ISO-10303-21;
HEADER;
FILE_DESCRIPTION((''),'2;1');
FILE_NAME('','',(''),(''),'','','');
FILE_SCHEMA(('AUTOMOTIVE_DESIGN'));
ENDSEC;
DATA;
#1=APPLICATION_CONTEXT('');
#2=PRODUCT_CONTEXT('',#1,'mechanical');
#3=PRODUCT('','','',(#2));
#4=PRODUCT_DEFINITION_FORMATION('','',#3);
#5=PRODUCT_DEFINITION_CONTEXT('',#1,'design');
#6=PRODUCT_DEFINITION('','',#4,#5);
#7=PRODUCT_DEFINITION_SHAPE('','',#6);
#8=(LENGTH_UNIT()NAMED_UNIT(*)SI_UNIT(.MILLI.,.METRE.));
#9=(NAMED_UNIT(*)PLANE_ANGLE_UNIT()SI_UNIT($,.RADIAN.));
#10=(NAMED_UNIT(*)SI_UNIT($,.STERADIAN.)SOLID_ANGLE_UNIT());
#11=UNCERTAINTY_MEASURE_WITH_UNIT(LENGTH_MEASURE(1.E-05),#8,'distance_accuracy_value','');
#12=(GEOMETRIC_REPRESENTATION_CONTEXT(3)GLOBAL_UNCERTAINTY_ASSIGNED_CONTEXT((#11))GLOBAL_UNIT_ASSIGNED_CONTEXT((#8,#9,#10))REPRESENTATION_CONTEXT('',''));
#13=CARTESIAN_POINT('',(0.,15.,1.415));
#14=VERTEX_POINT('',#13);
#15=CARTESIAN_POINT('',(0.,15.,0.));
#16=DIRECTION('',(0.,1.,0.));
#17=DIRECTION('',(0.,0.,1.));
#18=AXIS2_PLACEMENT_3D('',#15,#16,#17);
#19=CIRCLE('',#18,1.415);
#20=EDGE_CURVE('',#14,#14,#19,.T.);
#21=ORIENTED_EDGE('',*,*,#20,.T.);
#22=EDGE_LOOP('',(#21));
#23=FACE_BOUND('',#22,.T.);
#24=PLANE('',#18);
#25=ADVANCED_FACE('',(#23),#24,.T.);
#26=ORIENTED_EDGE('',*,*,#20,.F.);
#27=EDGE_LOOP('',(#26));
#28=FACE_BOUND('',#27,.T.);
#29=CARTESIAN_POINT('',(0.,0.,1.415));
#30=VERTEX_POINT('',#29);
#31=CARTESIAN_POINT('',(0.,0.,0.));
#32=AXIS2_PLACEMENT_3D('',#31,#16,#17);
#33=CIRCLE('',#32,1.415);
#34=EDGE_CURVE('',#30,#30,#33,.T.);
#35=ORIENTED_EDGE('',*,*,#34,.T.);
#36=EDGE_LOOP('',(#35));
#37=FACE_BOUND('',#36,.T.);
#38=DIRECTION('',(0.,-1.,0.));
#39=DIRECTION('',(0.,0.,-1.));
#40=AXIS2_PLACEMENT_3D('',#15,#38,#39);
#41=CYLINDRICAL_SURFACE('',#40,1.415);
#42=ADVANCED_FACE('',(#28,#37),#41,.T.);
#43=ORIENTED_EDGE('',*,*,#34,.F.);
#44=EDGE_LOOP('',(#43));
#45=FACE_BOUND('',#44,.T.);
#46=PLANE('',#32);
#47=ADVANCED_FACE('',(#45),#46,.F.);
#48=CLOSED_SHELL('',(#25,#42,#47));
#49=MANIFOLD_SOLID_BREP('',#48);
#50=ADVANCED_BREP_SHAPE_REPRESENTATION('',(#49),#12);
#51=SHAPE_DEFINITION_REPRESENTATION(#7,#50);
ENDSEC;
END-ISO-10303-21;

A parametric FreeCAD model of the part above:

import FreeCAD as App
import Part
import Sketcher

V = App.Vector
Q = App.Units.Quantity

doc = App.newDocument("Part")
body = doc.addObject("PartDesign::Body", "Body")

# Sketch on XZ plane
sketch1 = body.newObject("Sketcher::SketchObject", "Sketch")
sketch1.AttachmentSupport = (doc.getObject("XZ_Plane"), [""])
sketch1.MapMode = "FlatFace"
sketch1.addGeometry(Part.Circle(V(0, 0, 0), V(0, 0, 1), 1.4), False)
sketch1.addConstraint(Sketcher.Constraint("Coincident", 0, 3, -1, 1))
sketch1.addConstraint(Sketcher.Constraint("Diameter", 0, Q("2.83 mm")))
pad1 = body.newObject("PartDesign::Pad", "Pad")
pad1.Profile = sketch1
pad1.Length = 15
pad1.Reversed = True

doc.recompute()
